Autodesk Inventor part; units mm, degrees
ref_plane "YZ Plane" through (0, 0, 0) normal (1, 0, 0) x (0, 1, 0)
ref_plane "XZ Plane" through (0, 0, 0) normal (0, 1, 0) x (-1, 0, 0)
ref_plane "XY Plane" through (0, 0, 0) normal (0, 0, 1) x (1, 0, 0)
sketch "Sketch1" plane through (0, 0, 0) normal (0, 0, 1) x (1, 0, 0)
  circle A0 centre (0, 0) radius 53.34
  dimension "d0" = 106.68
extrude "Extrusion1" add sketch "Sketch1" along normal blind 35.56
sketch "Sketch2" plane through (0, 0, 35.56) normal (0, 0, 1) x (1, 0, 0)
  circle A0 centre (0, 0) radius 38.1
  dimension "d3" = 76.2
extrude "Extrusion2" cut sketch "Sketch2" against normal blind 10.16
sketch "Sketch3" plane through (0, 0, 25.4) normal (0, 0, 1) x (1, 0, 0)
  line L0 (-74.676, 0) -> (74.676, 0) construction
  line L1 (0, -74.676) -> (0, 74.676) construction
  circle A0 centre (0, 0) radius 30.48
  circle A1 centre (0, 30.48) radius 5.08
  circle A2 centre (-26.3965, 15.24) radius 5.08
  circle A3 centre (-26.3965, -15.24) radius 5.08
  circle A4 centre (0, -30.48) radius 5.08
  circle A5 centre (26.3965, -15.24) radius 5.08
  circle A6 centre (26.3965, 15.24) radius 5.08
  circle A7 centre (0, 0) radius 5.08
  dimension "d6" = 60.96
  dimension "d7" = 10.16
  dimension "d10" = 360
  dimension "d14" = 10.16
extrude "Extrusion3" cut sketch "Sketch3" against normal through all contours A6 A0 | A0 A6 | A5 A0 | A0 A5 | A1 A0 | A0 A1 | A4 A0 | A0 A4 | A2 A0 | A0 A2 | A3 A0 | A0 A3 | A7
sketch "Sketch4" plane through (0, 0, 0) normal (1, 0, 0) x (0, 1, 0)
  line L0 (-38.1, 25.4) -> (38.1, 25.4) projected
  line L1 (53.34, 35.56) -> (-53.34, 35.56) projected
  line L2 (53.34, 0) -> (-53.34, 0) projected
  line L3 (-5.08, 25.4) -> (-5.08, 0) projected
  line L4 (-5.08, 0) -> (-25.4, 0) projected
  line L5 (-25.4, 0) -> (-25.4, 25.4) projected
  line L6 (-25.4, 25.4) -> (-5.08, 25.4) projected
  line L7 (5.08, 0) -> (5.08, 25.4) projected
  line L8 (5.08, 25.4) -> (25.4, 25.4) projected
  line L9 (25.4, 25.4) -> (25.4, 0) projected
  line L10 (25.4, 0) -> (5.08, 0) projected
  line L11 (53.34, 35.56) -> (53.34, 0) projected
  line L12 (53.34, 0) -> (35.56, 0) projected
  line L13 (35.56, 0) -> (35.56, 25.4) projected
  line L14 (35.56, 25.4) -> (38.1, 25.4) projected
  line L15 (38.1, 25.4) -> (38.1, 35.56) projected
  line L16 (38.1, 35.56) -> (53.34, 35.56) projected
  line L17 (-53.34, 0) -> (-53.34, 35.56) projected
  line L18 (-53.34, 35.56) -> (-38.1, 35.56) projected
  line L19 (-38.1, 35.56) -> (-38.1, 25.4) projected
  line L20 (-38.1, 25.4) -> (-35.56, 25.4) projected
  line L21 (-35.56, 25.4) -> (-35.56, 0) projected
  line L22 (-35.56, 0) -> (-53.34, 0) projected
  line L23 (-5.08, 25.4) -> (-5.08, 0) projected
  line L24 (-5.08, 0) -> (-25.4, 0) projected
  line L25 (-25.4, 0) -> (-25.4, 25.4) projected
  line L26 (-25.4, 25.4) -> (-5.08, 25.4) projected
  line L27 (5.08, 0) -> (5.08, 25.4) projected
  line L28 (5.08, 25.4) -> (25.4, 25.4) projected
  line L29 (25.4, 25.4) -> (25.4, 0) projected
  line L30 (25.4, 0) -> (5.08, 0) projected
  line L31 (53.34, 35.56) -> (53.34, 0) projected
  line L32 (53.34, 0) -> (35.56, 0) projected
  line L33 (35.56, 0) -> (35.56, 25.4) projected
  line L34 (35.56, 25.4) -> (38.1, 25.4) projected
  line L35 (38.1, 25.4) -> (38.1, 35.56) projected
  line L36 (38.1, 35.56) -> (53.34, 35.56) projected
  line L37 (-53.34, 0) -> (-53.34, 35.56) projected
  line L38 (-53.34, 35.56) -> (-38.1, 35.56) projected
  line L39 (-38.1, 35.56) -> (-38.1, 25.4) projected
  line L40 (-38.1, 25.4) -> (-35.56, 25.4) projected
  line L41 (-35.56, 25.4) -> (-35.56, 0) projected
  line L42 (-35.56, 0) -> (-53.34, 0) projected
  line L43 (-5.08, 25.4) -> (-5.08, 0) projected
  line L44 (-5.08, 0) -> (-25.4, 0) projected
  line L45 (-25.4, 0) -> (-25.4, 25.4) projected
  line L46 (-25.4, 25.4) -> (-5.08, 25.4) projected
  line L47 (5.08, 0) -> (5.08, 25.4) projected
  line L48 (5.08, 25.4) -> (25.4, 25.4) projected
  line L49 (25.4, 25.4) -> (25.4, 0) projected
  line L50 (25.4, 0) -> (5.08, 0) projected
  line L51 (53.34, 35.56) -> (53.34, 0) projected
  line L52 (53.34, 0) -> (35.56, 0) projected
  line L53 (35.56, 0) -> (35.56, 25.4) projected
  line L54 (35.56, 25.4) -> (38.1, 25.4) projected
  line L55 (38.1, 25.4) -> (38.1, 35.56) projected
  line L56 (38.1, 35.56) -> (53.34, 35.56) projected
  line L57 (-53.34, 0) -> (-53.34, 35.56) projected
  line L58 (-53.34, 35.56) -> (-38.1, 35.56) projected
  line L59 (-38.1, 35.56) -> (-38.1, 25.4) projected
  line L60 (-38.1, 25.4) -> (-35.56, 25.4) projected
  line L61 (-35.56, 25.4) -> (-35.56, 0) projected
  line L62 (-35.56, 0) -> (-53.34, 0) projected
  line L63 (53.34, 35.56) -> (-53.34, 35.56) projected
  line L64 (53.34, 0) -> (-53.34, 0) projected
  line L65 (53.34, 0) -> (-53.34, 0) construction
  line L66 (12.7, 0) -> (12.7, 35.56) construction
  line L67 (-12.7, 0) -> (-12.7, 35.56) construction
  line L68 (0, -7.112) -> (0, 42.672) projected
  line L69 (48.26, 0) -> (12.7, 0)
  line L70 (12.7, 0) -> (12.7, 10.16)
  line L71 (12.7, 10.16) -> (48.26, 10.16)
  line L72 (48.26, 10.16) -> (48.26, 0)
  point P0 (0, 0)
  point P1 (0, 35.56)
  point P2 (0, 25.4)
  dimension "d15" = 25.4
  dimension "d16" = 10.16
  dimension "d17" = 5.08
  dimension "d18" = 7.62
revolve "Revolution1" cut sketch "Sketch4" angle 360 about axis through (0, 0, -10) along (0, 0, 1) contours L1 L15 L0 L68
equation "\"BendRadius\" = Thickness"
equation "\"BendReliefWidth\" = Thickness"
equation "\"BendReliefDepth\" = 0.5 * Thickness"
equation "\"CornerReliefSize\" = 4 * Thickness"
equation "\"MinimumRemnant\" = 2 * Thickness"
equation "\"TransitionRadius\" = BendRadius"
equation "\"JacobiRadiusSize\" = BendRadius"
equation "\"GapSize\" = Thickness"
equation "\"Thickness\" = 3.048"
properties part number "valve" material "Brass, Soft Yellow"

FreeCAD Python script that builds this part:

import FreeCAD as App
import Part
import Sketcher

V = App.Vector
Q = App.Units.Quantity


def add_polygon(sketch, points):
    """Adds a closed chain of lines whose ends are joined by coincident constraints."""
    first, n = sketch.GeometryCount, len(points)
    for a, b in zip(points, points[1:] + points[:1]):
        sketch.addGeometry(Part.LineSegment(App.Vector(*a, 0), App.Vector(*b, 0)), False)
    for i in range(n):
        sketch.addConstraint(Sketcher.Constraint("Coincident", first + i, 2, first + (i + 1) % n, 1))

doc = App.newDocument("Part")
body = doc.addObject("PartDesign::Body", "Body")

# Sketch on XY plane
sketch1 = body.newObject("Sketcher::SketchObject", "Sketch")
sketch1.AttachmentSupport = (doc.getObject("XY_Plane"), [""])
sketch1.MapMode = "FlatFace"
sketch1.addGeometry(Part.Circle(V(0, 0, 0), V(0, 0, 1), 53.34), False)
sketch1.addConstraint([
    Sketcher.Constraint("Coincident", 0, 3, -1, 1),
    Sketcher.Constraint("Diameter", 0, Q("4.2 in")),
])
pad1 = body.newObject("PartDesign::Pad", "Pad")
pad1.Profile = sketch1
pad1.Length = Q("1.4 in")

# Sketch on XY plane
sketch2 = body.newObject("Sketcher::SketchObject", "Sketch001")
sketch2.AttachmentSupport = (doc.getObject("XY_Plane"), [""])
sketch2.MapMode = "FlatFace"
sketch2.AttachmentOffset = App.Placement(V(0, 0, 1.4 * 25.4), App.Rotation())
sketch2.addGeometry(Part.Circle(V(0, 0, 0), V(0, 0, 1), 38.1), False)
sketch2.addConstraint([
    Sketcher.Constraint("Coincident", 0, 3, -1, 1),
    Sketcher.Constraint("Diameter", 0, Q("3 in")),
])
pocket1 = body.newObject("PartDesign::Pocket", "Pocket")
pocket1.Profile = sketch2
pocket1.Length = Q("0.4 in")

# Sketch on XY plane
sketch3 = body.newObject("Sketcher::SketchObject", "Sketch002")
sketch3.AttachmentSupport = (doc.getObject("XY_Plane"), [""])
sketch3.MapMode = "FlatFace"
sketch3.AttachmentOffset = App.Placement(V(0, 0, 1 * 25.4), App.Rotation())
sketch3.addGeometry([
    Part.Circle(V(26.3965, 15.24, 0), V(0, 0, 1), 5.08),  # 0
    Part.Circle(V(26.3965, -15.24, 0), V(0, 0, 1), 5.08),  # 1
    Part.Circle(V(0, 30.48, 0), V(0, 0, 1), 5.08),  # 2
    Part.Circle(V(0, -30.48, 0), V(0, 0, 1), 5.08),  # 3
    Part.Circle(V(-26.3965, 15.24, 0), V(0, 0, 1), 5.08),  # 4
    Part.Circle(V(-26.3965, -15.24, 0), V(0, 0, 1), 5.08),  # 5
    Part.Circle(V(0, 0, 0), V(0, 0, 1), 5.08),  # 6
], False)
sketch3.addConstraint([
    Sketcher.Constraint("Coincident", 6, 3, -1, 1),
    Sketcher.Constraint("Equal", 0, 1),
    Sketcher.Constraint("Equal", 1, 2),
    Sketcher.Constraint("Equal", 2, 3),
    Sketcher.Constraint("Equal", 3, 4),
    Sketcher.Constraint("Equal", 4, 5),
    Sketcher.Constraint("Equal", 5, 6),
    Sketcher.Constraint("Symmetric", 2, 3, 3, 3, -1, 1),
    Sketcher.Constraint("Symmetric", 1, 3, 4, 3, -1, 1),
    Sketcher.Constraint("Symmetric", 0, 3, 5, 3, -1, 1),
    Sketcher.Constraint("Symmetric", 0, 3, 4, 3, -2),
    Sketcher.Constraint("PointOnObject", 2, 3, -2),
    Sketcher.Constraint("Diameter", 0, Q("0.4 in")),
    Sketcher.Constraint("DistanceY", 3, 3, 2, 3, Q("2.4 in")),
    Sketcher.Constraint("DistanceY", -1, 1, 0, 3, Q("0.6 in")),
    Sketcher.Constraint("DistanceX", -1, 1, 0, 3, 26.3965),
])
pocket2 = body.newObject("PartDesign::Pocket", "Pocket001")
pocket2.Profile = sketch3
pocket2.Type = "ThroughAll"

# Sketch on YZ plane
sketch4 = body.newObject("Sketcher::SketchObject", "Sketch003")
sketch4.AttachmentSupport = (doc.getObject("YZ_Plane"), [""])
sketch4.MapMode = "FlatFace"
add_polygon(sketch4, [(38.1, 35.56), (0, 35.56), (0, 25.4), (38.1, 25.4)])  # lines 0-3
sketch4.addConstraint([
    Sketcher.Constraint("Horizontal", 0),
    Sketcher.Constraint("Vertical", 1),
    Sketcher.Constraint("Horizontal", 2),
    Sketcher.Constraint("Vertical", 3),
    Sketcher.Constraint("PointOnObject", 0, 2, -2),
    Sketcher.Constraint("DistanceY", 1, 2, 1, 1, Q("0.4 in")),
    Sketcher.Constraint("DistanceY", -1, 1, 1, 2, Q("1 in")),
    Sketcher.Constraint("DistanceX", 0, 2, 0, 1, Q("1.5 in")),
])
groove = body.newObject("PartDesign::Groove", "Groove")
groove.Profile = sketch4
groove.ReferenceAxis = (sketch4, ["V_Axis"])
groove.Angle = 360

doc.recompute()
